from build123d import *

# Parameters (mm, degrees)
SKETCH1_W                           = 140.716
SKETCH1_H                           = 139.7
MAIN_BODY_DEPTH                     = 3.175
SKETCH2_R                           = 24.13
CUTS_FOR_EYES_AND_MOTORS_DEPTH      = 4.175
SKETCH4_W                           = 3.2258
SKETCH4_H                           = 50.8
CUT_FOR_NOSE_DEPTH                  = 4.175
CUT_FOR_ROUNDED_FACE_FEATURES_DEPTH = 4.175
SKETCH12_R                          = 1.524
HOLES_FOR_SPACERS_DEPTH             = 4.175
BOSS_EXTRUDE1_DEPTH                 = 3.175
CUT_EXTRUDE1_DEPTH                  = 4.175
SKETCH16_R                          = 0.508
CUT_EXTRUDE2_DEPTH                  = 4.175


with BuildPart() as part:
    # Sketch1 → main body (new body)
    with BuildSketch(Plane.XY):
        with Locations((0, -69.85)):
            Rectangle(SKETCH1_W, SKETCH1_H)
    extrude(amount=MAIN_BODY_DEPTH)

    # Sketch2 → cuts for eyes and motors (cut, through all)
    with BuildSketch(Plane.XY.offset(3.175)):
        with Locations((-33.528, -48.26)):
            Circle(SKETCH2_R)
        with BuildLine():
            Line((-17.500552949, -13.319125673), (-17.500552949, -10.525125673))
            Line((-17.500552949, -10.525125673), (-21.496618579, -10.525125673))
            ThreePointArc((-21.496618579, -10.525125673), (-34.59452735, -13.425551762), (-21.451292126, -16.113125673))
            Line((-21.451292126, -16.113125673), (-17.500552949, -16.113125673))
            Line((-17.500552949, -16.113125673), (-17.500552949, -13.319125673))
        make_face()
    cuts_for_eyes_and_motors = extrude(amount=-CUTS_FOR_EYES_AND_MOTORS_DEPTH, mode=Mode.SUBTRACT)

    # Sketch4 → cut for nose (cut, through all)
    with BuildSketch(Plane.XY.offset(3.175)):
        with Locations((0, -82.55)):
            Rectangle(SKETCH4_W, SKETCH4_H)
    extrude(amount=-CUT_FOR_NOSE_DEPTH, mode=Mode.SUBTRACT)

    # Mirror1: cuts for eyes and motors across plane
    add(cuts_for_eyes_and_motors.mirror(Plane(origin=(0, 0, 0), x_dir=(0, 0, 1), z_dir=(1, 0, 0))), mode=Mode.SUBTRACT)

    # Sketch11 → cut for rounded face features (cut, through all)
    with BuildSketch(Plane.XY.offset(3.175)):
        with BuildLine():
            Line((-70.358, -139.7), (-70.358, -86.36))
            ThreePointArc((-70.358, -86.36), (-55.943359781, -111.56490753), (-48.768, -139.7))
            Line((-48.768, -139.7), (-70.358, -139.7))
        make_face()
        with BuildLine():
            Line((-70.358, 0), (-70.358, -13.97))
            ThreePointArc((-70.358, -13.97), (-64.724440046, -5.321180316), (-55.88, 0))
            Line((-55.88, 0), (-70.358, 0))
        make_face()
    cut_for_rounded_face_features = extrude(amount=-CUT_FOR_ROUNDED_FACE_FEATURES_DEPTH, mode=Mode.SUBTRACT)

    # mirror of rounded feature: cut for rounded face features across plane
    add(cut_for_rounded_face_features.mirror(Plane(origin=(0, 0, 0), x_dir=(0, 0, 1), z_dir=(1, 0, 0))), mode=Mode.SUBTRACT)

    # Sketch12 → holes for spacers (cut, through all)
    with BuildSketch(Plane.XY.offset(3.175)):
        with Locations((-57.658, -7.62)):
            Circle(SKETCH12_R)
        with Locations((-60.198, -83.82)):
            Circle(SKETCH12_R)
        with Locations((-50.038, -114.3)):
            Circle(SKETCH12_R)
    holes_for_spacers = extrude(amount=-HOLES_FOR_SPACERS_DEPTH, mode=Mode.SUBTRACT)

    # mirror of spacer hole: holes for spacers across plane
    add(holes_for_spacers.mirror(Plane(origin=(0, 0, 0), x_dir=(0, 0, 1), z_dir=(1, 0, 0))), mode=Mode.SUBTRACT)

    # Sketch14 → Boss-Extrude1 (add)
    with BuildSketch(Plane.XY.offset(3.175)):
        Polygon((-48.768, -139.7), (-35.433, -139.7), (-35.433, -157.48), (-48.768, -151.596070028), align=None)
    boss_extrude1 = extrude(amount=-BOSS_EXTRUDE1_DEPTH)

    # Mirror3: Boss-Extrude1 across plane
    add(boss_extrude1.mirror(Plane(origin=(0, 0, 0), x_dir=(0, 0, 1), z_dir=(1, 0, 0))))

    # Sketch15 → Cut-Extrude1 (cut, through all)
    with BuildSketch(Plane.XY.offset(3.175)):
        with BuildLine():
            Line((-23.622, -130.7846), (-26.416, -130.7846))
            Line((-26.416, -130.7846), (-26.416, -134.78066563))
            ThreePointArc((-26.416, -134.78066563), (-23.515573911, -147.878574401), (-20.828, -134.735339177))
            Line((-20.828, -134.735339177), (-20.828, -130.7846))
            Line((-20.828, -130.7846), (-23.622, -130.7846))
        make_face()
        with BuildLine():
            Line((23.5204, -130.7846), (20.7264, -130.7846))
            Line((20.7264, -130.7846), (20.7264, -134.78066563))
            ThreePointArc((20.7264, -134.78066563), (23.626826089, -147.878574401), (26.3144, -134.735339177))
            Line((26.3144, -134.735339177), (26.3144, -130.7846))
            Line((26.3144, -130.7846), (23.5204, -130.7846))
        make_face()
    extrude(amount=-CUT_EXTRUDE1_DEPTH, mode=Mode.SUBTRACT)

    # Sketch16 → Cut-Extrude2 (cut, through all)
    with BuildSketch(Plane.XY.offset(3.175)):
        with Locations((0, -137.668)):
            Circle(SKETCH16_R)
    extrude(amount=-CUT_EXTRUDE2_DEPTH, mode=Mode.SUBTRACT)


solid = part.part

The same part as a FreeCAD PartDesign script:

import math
import FreeCAD as App
import Part
import Sketcher
from FreeCAD import Vector
Q = App.Units.Quantity


def add_polygon(sketch, points):
    """Adds a closed chain of lines whose ends are joined by coincident constraints."""
    first, n = sketch.GeometryCount, len(points)
    for a, b in zip(points, points[1:] + points[:1]):
        sketch.addGeometry(Part.LineSegment(App.Vector(*a, 0), App.Vector(*b, 0)), False)
    for i in range(n):
        sketch.addConstraint(Sketcher.Constraint("Coincident", first + i, 2, first + (i + 1) % n, 1))

doc = App.newDocument("Part")
params = doc.addObject("Spreadsheet::Sheet", "Params")
for row, (alias, value) in enumerate([
    ("sketch1_height", "5.5 in"),
    ("sketch1_width", "5.54 in"),
    ("pad1_length", "0.125 in"),
    ("sketch2_diameter", "1.9 in"),
    ("sketch2_radius", "0.27 in"),
    ("sketch2_height", "0.22 in"),
    ("sketch3_height", "2 in"),
    ("sketch3_width", "0.127 in"),
    ("sketch4_radius", "4.25 in"),
    ("sketch4_height", "2.1 in"),
    ("sketch4_width", "0.85 in"),
    ("sketch4_width2", "0.57 in"),
    ("sketch4_height2", "0.55 in"),
    ("sketch5_diameter", "0.12 in"),
    ("sketch6_height", "0.7 in"),
    ("sketch6_width", "0.525 in"),
    ("pad2_length", "0.125 in"),
    ("sketch7_radius", "0.27 in"),
    ("sketch7_width", "0.22 in"),
    ("sketch8_diameter", "0.04 in"),
], start=1):
    params.set(f"A{row}", alias)
    params.set(f"B{row}", "=" + value)
    params.setAlias(f"B{row}", alias)

body = doc.addObject("PartDesign::Body", "Body")

sketch1 = body.newObject("Sketcher::SketchObject", "Sketch")
sketch1.AttachmentSupport = (doc.getObject("XY_Plane"), [""])
sketch1.MapMode = "FlatFace"
add_polygon(sketch1, [(-70.358, 0), (-70.358, -139.7), (70.358, -139.7), (70.358, 0)])
sketch1.addConstraint(Sketcher.Constraint("Vertical", 0))
sketch1.addConstraint(Sketcher.Constraint("Horizontal", 1))
sketch1.addConstraint(Sketcher.Constraint("Vertical", 2))
sketch1.addConstraint(Sketcher.Constraint("Horizontal", 3))
sketch1.addConstraint(Sketcher.Constraint("Symmetric", 2, 2, 3, 2, -1, 1))
sketch1.addConstraint(Sketcher.Constraint("DistanceY", 0, 2, 0, 1, Q("5.5 in")))
sketch1.addConstraint(Sketcher.Constraint("DistanceX", 1, 1, 1, 2, Q("5.54 in")))
sketch1.setExpression("Constraints[9]", "Params.sketch1_height")
sketch1.setExpression("Constraints[10]", "Params.sketch1_width")
pad1 = body.newObject("PartDesign::Pad", "Pad")
pad1.Profile = sketch1
pad1.setExpression("Length", "Params.pad1_length")

sketch2 = body.newObject("Sketcher::SketchObject", "Sketch001")
sketch2.AttachmentSupport = (doc.getObject("XY_Plane"), [""])
sketch2.MapMode = "FlatFace"
sketch2.AttachmentOffset = App.Placement(Vector(0, 0, 0.125 * 25.4), App.Rotation())
sketch2.addGeometry(Part.Circle(Vector(-33.528, -48.26, 0), Vector(0, 0, 1), 24.13), False)
sketch2.addGeometry(Part.LineSegment(Vector(-17.500553, -10.525126, 0), Vector(-21.496619, -10.525126, 0)), False)
sketch2.addGeometry(Part.ArcOfCircle(Part.Circle(Vector(-27.736753, -13.369926, 0), Vector(0, 0, 1), 6.858), math.radians(24.507655), math.radians(336.421822)), False)
sketch2.addGeometry(Part.LineSegment(Vector(-21.451292, -16.113126, 0), Vector(-17.500553, -16.113126, 0)), False)
sketch2.addGeometry(Part.LineSegment(Vector(-17.500553, -16.113126, 0), Vector(-17.500553, -10.525126, 0)), False)
sketch2.addConstraint(Sketcher.Constraint("Coincident", 1, 2, 2, 1))
sketch2.addConstraint(Sketcher.Constraint("Coincident", 2, 2, 3, 1))
sketch2.addConstraint(Sketcher.Constraint("Coincident", 3, 2, 4, 1))
sketch2.addConstraint(Sketcher.Constraint("Coincident", 4, 2, 1, 1))
sketch2.addConstraint(Sketcher.Constraint("Horizontal", 1))
sketch2.addConstraint(Sketcher.Constraint("Horizontal", 3))
sketch2.addConstraint(Sketcher.Constraint("Vertical", 4))
sketch2.addConstraint(Sketcher.Constraint("Diameter", 0, Q("1.9 in")))
sketch2.addConstraint(Sketcher.Constraint("Radius", 2, Q("0.27 in")))
sketch2.addConstraint(Sketcher.Constraint("DistanceY", 4, 1, 4, 2, Q("0.22 in")))
sketch2.addConstraint(Sketcher.Constraint("DistanceY", 0, 3, -1, 1, Q("1.9 in")))
sketch2.addConstraint(Sketcher.Constraint("DistanceX", 0, 3, -1, 1, Q("1.32 in")))
sketch2.addConstraint(Sketcher.Constraint("DistanceY", 2, 3, 1, 2, Q("0.112 in")))
sketch2.addConstraint(Sketcher.Constraint("DistanceY", 0, 3, 2, 2, Q("1.265625 in")))
sketch2.addConstraint(Sketcher.Constraint("DistanceX", 2, 3, 3, 2, Q("0.403 in")))
sketch2.addConstraint(Sketcher.Constraint("DistanceX", 1, 2, -1, 1, 21.496619))
sketch2.setExpression("Constraints[7]", "Params.sketch2_diameter")
sketch2.setExpression("Constraints[8]", "Params.sketch2_radius")
sketch2.setExpression("Constraints[9]", "Params.sketch2_height")
pocket1 = body.newObject("PartDesign::Pocket", "Pocket")
pocket1.Profile = sketch2
pocket1.Type = "ThroughAll"

sketch3 = body.newObject("Sketcher::SketchObject", "Sketch002")
sketch3.AttachmentSupport = (doc.getObject("XY_Plane"), [""])
sketch3.MapMode = "FlatFace"
sketch3.AttachmentOffset = App.Placement(Vector(0, 0, 0.125 * 25.4), App.Rotation())
add_polygon(sketch3, [(-1.6129, -57.15), (-1.6129, -107.95), (1.6129, -107.95), (1.6129, -57.15)])
sketch3.addConstraint(Sketcher.Constraint("Vertical", 0))
sketch3.addConstraint(Sketcher.Constraint("Horizontal", 1))
sketch3.addConstraint(Sketcher.Constraint("Vertical", 2))
sketch3.addConstraint(Sketcher.Constraint("Horizontal", 3))
sketch3.addConstraint(Sketcher.Constraint("DistanceY", 0, 2, 0, 1, Q("2 in")))
sketch3.addConstraint(Sketcher.Constraint("DistanceX", 1, 1, 1, 2, Q("0.127 in")))
sketch3.addConstraint(Sketcher.Constraint("DistanceY", 0, 2, -1, 1, Q("4.25 in")))
sketch3.addConstraint(Sketcher.Constraint("DistanceX", 0, 2, -1, 1, Q("0.0635 in")))
sketch3.setExpression("Constraints[8]", "Params.sketch3_height")
sketch3.setExpression("Constraints[9]", "Params.sketch3_width")
pocket2 = body.newObject("PartDesign::Pocket", "Pocket001")
pocket2.Profile = sketch3
pocket2.Type = "ThroughAll"
doc.recompute()

mirrored = body.newObject("PartDesign::Mirrored", "Mirrored")
mirrored.Originals = [pocket1]
mirrored.MirrorPlane = (doc.getObject("YZ_Plane"), [""])
body.Tip = mirrored

sketch4 = body.newObject("Sketcher::SketchObject", "Sketch003")
sketch4.AttachmentSupport = (doc.getObject("XY_Plane"), [""])
sketch4.MapMode = "FlatFace"
sketch4.AttachmentOffset = App.Placement(Vector(0, 0, 0.125 * 25.4), App.Rotation())
sketch4.addGeometry(Part.LineSegment(Vector(-70.358, -86.36, 0), Vector(-70.358, -139.7, 0)), False)
sketch4.addGeometry(Part.LineSegment(Vector(-70.358, -139.7, 0), Vector(-48.768, -139.7, 0)), False)
sketch4.addGeometry(Part.ArcOfCircle(Part.Circle(Vector(-156.007268, -152.066966, 0), Vector(0, 0, 1), 107.95), math.radians(6.578361), math.radians(37.494093)), False)
sketch4.addGeometry(Part.LineSegment(Vector(-70.358, 0, 0), Vector(-70.358, -13.97, 0)), False)
sketch4.addGeometry(Part.ArcOfCircle(Part.Circle(Vector(-48.726439, -21.900927, 0), Vector(0, 0, 1), 23.039619), math.radians(108.088736), math.radians(159.865204)), False)
sketch4.addGeometry(Part.LineSegment(Vector(-55.88, 0, 0), Vector(-70.358, 0, 0)), False)
sketch4.addConstraint(Sketcher.Constraint("Coincident", 0, 2, 1, 1))
sketch4.addConstraint(Sketcher.Constraint("Coincident", 1, 2, 2, 1))
sketch4.addConstraint(Sketcher.Constraint("Coincident", 2, 2, 0, 1))
sketch4.addConstraint(Sketcher.Constraint("Coincident", 3, 2, 4, 2))
sketch4.addConstraint(Sketcher.Constraint("Coincident", 4, 1, 5, 1))
sketch4.addConstraint(Sketcher.Constraint("Coincident", 5, 2, 3, 1))
sketch4.addConstraint(Sketcher.Constraint("Vertical", 0))
sketch4.addConstraint(Sketcher.Constraint("Horizontal", 1))
sketch4.addConstraint(Sketcher.Constraint("Vertical", 3))
sketch4.addConstraint(Sketcher.Constraint("Horizontal", 5))
sketch4.addConstraint(Sketcher.Constraint("PointOnObject", 4, 1, -1))
sketch4.addConstraint(Sketcher.Constraint("Vertical", 2, 2, 3, 2))
sketch4.addConstraint(Sketcher.Constraint("Radius", 2, Q("4.25 in")))
sketch4.addConstraint(Sketcher.Constraint("DistanceY", 0, 2, 0, 1, Q("2.1 in")))
sketch4.addConstraint(Sketcher.Constraint("DistanceX", 1, 1, 1, 2, Q("0.85 in")))
sketch4.addConstraint(Sketcher.Constraint("DistanceX", 5, 2, 5, 1, Q("0.57 in")))
sketch4.addConstraint(Sketcher.Constraint("DistanceY", 3, 2, 3, 1, Q("0.55 in")))
sketch4.addConstraint(Sketcher.Constraint("DistanceY", 0, 2, -1, 1, Q("5.5 in")))
sketch4.addConstraint(Sketcher.Constraint("DistanceX", 4, 1, -1, 1, Q("2.2 in")))
sketch4.addConstraint(Sketcher.Constraint("Radius", 4, 23.039619))
sketch4.setExpression("Constraints[12]", "Params.sketch4_radius")
sketch4.setExpression("Constraints[13]", "Params.sketch4_height")
sketch4.setExpression("Constraints[14]", "Params.sketch4_width")
sketch4.setExpression("Constraints[15]", "Params.sketch4_width2")
sketch4.setExpression("Constraints[16]", "Params.sketch4_height2")
pocket3 = body.newObject("PartDesign::Pocket", "Pocket002")
pocket3.Profile = sketch4
pocket3.Type = "ThroughAll"
doc.recompute()

mirrored2 = body.newObject("PartDesign::Mirrored", "Mirrored001")
mirrored2.Originals = [pocket3]
mirrored2.MirrorPlane = (doc.getObject("YZ_Plane"), [""])
body.Tip = mirrored2

sketch5 = body.newObject("Sketcher::SketchObject", "Sketch004")
sketch5.AttachmentSupport = (doc.getObject("XY_Plane"), [""])
sketch5.MapMode = "FlatFace"
sketch5.AttachmentOffset = App.Placement(Vector(0, 0, 0.125 * 25.4), App.Rotation())
sketch5.addGeometry(Part.Circle(Vector(-57.658, -7.62, 0), Vector(0, 0, 1), 1.524), False)
sketch5.addGeometry(Part.Circle(Vector(-60.198, -83.82, 0), Vector(0, 0, 1), 1.524), False)
sketch5.addGeometry(Part.Circle(Vector(-50.038, -114.3, 0), Vector(0, 0, 1), 1.524), False)
sketch5.addConstraint(Sketcher.Constraint("Equal", 0, 1))
sketch5.addConstraint(Sketcher.Constraint("Equal", 1, 2))
sketch5.addConstraint(Sketcher.Constraint("Diameter", 0, Q("0.12 in")))
sketch5.addConstraint(Sketcher.Constraint("DistanceY", 1, 3, 0, 3, Q("3 in")))
sketch5.addConstraint(Sketcher.Constraint("DistanceY", 0, 3, -1, 1, Q("0.3 in")))
sketch5.addConstraint(Sketcher.Constraint("DistanceY", 2, 3, -1, 1, Q("4.5 in")))
sketch5.addConstraint(Sketcher.Constraint("DistanceX", 1, 3, 0, 3, Q("0.1 in")))
sketch5.addConstraint(Sketcher.Constraint("DistanceX", 1, 3, 2, 3, Q("0.4 in")))
sketch5.addConstraint(Sketcher.Constraint("DistanceX", 0, 3, -1, 1, Q("2.27 in")))
sketch5.setExpression("Constraints[2]", "Params.sketch5_diameter")
pocket4 = body.newObject("PartDesign::Pocket", "Pocket003")
pocket4.Profile = sketch5
pocket4.Type = "ThroughAll"
doc.recompute()

mirrored3 = body.newObject("PartDesign::Mirrored", "Mirrored002")
mirrored3.Originals = [pocket4]
mirrored3.MirrorPlane = (doc.getObject("YZ_Plane"), [""])
body.Tip = mirrored3

sketch6 = body.newObject("Sketcher::SketchObject", "Sketch005")
sketch6.AttachmentSupport = (doc.getObject("XY_Plane"), [""])
sketch6.MapMode = "FlatFace"
sketch6.AttachmentOffset = App.Placement(Vector(0, 0, 0.125 * 25.4), App.Rotation())
add_polygon(sketch6, [(-35.433, -139.7), (-48.768, -139.7), (-48.768, -151.59607), (-35.433, -157.48)])
sketch6.addConstraint(Sketcher.Constraint("Horizontal", 0))
sketch6.addConstraint(Sketcher.Constraint("Vertical", 1))
sketch6.addConstraint(Sketcher.Constraint("Vertical", 3))
sketch6.addConstraint(Sketcher.Constraint("DistanceY", 3, 1, 3, 2, Q("0.7 in")))
sketch6.addConstraint(Sketcher.Constraint("DistanceY", 0, 2, -1, 1, Q("5.5 in")))
sketch6.addConstraint(Sketcher.Constraint("DistanceX", 0, 2, 0, 1, Q("0.525 in")))
sketch6.addConstraint(Sketcher.Constraint("DistanceX", 0, 2, -1, 1, Q("1.92 in")))
sketch6.addConstraint(Sketcher.Constraint("DistanceY", 1, 2, 1, 1, 11.89607))
sketch6.setExpression("Constraints[7]", "Params.sketch6_height")
sketch6.setExpression("Constraints[9]", "Params.sketch6_width")
pad2 = body.newObject("PartDesign::Pad", "Pad001")
pad2.Profile = sketch6
pad2.setExpression("Length", "Params.pad2_length")
pad2.Reversed = True
doc.recompute()

mirrored4 = body.newObject("PartDesign::Mirrored", "Mirrored003")
mirrored4.Originals = [pad2]
mirrored4.MirrorPlane = (doc.getObject("YZ_Plane"), [""])
body.Tip = mirrored4

sketch7 = body.newObject("Sketcher::SketchObject", "Sketch006")
sketch7.AttachmentSupport = (doc.getObject("XY_Plane"), [""])
sketch7.MapMode = "FlatFace"
sketch7.AttachmentOffset = App.Placement(Vector(0, 0, 0.125 * 25.4), App.Rotation())
sketch7.addGeometry(Part.LineSegment(Vector(-26.416, -130.7846, 0), Vector(-26.416, -134.780666, 0)), False)
sketch7.addGeometry(Part.ArcOfCircle(Part.Circle(Vector(-23.5712, -141.0208, 0), Vector(0, 0, 1), 6.858), math.radians(114.507655), math.radians(426.421822)), False)
sketch7.addGeometry(Part.LineSegment(Vector(-20.828, -134.735339, 0), Vector(-20.828, -130.7846, 0)), False)
sketch7.addGeometry(Part.LineSegment(Vector(-20.828, -130.7846, 0), Vector(-26.416, -130.7846, 0)), False)
sketch7.addGeometry(Part.LineSegment(Vector(20.7264, -130.7846, 0), Vector(20.7264, -134.780666, 0)), False)
sketch7.addGeometry(Part.ArcOfCircle(Part.Circle(Vector(23.5712, -141.0208, 0), Vector(0, 0, 1), 6.858), math.radians(114.507655), math.radians(426.421822)), False)
sketch7.addGeometry(Part.LineSegment(Vector(26.3144, -134.735339, 0), Vector(26.3144, -130.7846, 0)), False)
sketch7.addGeometry(Part.LineSegment(Vector(26.3144, -130.7846, 0), Vector(20.7264, -130.7846, 0)), False)
sketch7.addConstraint(Sketcher.Constraint("Coincident", 0, 2, 1, 1))
sketch7.addConstraint(Sketcher.Constraint("Coincident", 1, 2, 2, 1))
sketch7.addConstraint(Sketcher.Constraint("Coincident", 2, 2, 3, 1))
sketch7.addConstraint(Sketcher.Constraint("Coincident", 3, 2, 0, 1))
sketch7.addConstraint(Sketcher.Constraint("Coincident", 4, 2, 5, 1))
sketch7.addConstraint(Sketcher.Constraint("Coincident", 5, 2, 6, 1))
sketch7.addConstraint(Sketcher.Constraint("Coincident", 6, 2, 7, 1))
sketch7.addConstraint(Sketcher.Constraint("Coincident", 7, 2, 4, 1))
sketch7.addConstraint(Sketcher.Constraint("Vertical", 0))
sketch7.addConstraint(Sketcher.Constraint("Vertical", 2))
sketch7.addConstraint(Sketcher.Constraint("Horizontal", 3))
sketch7.addConstraint(Sketcher.Constraint("Vertical", 4))
sketch7.addConstraint(Sketcher.Constraint("Vertical", 6))
sketch7.addConstraint(Sketcher.Constraint("Horizontal", 7))
sketch7.addConstraint(Sketcher.Constraint("Equal", 1, 5))
sketch7.addConstraint(Sketcher.Constraint("Symmetric", 1, 3, 5, 3, -2))
sketch7.addConstraint(Sketcher.Constraint("Horizontal", 0, 2, 4, 2))
sketch7.addConstraint(Sketcher.Constraint("Horizontal", 1, 2, 5, 2))
sketch7.addConstraint(Sketcher.Constraint("Horizontal", 3, 2, 6, 2))
sketch7.addConstraint(Sketcher.Constraint("Radius", 1, Q("0.27 in")))
sketch7.addConstraint(Sketcher.Constraint("DistanceX", 3, 2, 3, 1, Q("0.22 in")))
sketch7.addConstraint(Sketcher.Constraint("DistanceX", 0, 2, -1, 1, Q("1.04 in")))
sketch7.addConstraint(Sketcher.Constraint("DistanceX", 1, 3, -1, 1, Q("0.928 in")))
sketch7.addConstraint(Sketcher.Constraint("DistanceY", 1, 3, -1, 1, Q("5.552 in")))
sketch7.addConstraint(Sketcher.Constraint("DistanceY", 2, 2, -1, 1, Q("5.149 in")))
sketch7.setExpression("Constraints[19]", "Params.sketch7_radius")
sketch7.setExpression("Constraints[20]", "Params.sketch7_width")
pocket5 = body.newObject("PartDesign::Pocket", "Pocket004")
pocket5.Profile = sketch7
pocket5.Type = "ThroughAll"

sketch8 = body.newObject("Sketcher::SketchObject", "Sketch007")
sketch8.AttachmentSupport = (doc.getObject("XY_Plane"), [""])
sketch8.MapMode = "FlatFace"
sketch8.AttachmentOffset = App.Placement(Vector(0, 0, 0.125 * 25.4), App.Rotation())
sketch8.addGeometry(Part.Circle(Vector(0, -137.668, 0), Vector(0, 0, 1), 0.508), False)
sketch8.addConstraint(Sketcher.Constraint("PointOnObject", 0, 3, -2))
sketch8.addConstraint(Sketcher.Constraint("Diameter", 0, Q("0.04 in")))
sketch8.addConstraint(Sketcher.Constraint("DistanceY", 0, 3, -1, 1, Q("5.42 in")))
sketch8.setExpression("Constraints[1]", "Params.sketch8_diameter")
pocket6 = body.newObject("PartDesign::Pocket", "Pocket005")
pocket6.Profile = sketch8
pocket6.Type = "ThroughAll"

doc.recompute()
